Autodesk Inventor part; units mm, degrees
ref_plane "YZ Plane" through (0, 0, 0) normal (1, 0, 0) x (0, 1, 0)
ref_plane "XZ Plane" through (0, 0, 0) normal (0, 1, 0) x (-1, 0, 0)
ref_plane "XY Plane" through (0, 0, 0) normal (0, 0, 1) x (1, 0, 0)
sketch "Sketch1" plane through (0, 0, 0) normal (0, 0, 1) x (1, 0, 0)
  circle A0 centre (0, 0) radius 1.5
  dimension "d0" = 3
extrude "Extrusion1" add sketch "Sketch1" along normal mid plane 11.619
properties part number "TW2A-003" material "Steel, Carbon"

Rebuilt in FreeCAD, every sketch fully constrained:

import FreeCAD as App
import Part
import Sketcher

doc = App.newDocument("Part")
body = doc.addObject("PartDesign::Body", "Body")

sketch1 = doc.addObject("Sketcher::SketchObject", "Sketch")
body.addObject(sketch1)
sketch1.AttachmentSupport = (doc.XY_Plane, [""])
sketch1.MapMode = "FlatFace"
sketch1.addGeometry(Part.Circle(App.Vector(0, 0, 0), App.Vector(0, 0, 1), 1.5), False)
sketch1.addConstraint(Sketcher.Constraint("Coincident", 0, 3, -1, 1))
sketch1.addConstraint(Sketcher.Constraint("Diameter", 0, 3.0))
pad1 = doc.addObject("PartDesign::Pad", "Pad")
body.addObject(pad1)
pad1.Profile = sketch1
pad1.Length = 11.619
pad1.Midplane = True

doc.recompute()
